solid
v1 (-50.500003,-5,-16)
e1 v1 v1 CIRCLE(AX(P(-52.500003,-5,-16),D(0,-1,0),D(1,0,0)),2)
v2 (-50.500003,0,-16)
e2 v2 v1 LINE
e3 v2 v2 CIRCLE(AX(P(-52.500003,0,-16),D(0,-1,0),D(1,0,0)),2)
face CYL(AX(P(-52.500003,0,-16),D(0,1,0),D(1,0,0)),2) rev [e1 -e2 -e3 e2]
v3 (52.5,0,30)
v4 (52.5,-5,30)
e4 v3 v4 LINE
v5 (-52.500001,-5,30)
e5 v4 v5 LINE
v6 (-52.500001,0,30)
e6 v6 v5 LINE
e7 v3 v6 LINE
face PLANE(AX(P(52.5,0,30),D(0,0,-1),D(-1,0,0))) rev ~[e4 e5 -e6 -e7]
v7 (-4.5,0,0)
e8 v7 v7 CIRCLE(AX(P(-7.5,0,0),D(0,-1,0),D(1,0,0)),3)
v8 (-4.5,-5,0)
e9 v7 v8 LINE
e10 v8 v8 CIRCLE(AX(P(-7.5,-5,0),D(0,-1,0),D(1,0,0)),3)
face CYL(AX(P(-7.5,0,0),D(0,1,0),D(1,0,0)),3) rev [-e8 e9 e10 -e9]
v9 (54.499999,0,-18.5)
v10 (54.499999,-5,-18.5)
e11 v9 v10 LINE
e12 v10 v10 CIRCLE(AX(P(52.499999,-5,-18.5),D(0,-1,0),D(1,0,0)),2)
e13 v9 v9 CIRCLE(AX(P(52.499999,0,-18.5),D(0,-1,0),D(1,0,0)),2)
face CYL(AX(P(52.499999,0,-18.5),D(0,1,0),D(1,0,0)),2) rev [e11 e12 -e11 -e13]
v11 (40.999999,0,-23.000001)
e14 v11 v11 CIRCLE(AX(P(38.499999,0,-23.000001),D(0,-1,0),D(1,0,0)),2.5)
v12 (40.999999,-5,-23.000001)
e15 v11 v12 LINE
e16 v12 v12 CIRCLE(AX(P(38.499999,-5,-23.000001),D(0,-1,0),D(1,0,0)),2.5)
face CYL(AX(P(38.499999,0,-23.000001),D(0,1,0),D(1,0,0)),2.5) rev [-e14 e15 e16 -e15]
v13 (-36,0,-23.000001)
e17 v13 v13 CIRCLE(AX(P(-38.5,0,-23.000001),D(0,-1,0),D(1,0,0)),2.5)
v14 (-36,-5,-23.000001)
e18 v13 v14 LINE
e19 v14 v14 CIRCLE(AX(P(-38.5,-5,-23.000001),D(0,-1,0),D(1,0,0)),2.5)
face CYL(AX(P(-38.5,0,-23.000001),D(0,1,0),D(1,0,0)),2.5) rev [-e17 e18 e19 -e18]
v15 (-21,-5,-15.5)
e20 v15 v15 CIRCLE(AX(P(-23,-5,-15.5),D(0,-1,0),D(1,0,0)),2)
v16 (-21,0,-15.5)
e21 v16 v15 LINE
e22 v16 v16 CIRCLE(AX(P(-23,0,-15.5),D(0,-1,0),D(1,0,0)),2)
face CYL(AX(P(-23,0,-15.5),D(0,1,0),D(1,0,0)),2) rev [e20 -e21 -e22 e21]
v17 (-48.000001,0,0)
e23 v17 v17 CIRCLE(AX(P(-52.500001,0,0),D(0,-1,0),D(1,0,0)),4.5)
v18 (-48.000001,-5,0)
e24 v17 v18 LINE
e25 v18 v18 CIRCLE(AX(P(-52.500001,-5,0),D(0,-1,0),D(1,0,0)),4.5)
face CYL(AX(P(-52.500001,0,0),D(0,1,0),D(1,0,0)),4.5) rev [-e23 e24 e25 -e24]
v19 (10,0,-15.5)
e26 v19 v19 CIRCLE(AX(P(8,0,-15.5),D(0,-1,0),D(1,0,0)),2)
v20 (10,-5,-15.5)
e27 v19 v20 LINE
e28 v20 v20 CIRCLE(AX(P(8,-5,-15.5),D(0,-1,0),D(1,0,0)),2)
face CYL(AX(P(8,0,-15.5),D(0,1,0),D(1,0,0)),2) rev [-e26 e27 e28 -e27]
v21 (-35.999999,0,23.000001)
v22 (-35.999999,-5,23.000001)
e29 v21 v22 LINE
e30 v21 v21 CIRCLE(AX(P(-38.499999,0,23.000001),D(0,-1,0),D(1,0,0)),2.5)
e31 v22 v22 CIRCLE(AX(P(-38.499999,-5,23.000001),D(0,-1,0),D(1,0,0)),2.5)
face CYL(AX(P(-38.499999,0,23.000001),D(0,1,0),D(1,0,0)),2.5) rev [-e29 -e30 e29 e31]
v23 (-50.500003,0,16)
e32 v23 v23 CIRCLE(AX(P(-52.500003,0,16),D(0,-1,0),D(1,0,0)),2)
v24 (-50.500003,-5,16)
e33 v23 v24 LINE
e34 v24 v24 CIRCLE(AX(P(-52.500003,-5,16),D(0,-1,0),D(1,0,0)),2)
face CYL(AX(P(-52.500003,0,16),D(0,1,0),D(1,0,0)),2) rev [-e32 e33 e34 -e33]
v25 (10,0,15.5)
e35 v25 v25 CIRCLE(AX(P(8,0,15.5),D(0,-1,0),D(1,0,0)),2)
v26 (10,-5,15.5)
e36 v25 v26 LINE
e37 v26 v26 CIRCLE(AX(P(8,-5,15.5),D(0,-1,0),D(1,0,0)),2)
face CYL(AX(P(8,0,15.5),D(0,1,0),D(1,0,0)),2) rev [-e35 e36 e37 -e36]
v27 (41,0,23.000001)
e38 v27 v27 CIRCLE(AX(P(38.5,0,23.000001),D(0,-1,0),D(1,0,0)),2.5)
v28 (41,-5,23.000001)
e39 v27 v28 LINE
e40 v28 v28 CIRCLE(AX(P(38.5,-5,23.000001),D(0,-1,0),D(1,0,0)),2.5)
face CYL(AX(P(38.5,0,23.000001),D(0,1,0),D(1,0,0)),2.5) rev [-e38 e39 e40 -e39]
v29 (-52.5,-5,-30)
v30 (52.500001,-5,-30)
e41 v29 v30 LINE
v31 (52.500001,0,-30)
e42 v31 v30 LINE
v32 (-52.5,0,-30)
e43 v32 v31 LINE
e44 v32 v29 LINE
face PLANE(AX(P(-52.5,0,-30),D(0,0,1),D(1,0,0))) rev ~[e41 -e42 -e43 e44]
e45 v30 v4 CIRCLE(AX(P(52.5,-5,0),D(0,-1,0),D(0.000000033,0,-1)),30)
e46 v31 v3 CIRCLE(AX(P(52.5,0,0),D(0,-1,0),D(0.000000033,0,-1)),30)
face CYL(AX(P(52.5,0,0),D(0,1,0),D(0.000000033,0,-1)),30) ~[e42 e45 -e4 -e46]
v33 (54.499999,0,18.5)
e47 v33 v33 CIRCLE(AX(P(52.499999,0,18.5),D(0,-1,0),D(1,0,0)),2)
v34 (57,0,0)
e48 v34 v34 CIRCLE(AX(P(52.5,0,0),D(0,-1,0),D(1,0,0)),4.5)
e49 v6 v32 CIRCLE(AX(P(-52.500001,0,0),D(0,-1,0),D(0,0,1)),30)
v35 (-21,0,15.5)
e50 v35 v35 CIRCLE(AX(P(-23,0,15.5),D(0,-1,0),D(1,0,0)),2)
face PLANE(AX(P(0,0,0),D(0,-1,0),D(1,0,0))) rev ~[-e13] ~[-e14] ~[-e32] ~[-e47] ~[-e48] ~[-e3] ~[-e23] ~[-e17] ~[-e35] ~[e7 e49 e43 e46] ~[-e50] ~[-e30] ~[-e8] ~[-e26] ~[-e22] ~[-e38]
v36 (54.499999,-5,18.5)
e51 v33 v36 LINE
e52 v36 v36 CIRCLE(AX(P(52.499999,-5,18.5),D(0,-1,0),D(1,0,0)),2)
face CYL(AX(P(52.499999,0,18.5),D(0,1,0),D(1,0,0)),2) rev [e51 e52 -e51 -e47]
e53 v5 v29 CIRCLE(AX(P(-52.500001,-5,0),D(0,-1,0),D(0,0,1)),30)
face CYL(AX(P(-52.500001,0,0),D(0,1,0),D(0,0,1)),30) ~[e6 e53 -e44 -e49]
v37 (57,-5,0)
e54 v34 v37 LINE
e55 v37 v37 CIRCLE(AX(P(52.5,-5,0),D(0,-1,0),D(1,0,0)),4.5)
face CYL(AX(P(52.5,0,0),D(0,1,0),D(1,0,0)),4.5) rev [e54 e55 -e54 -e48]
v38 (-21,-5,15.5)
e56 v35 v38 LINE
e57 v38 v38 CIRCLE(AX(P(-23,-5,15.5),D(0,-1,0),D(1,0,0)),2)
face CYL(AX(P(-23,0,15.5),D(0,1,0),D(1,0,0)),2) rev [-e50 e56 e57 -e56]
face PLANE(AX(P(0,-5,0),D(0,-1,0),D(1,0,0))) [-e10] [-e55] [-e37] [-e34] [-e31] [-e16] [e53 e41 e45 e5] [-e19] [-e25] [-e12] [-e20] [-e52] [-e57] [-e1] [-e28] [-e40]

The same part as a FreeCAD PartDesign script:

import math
import FreeCAD as App
import Part
import Sketcher
from FreeCAD import Vector
Q = App.Units.Quantity

doc = App.newDocument("Part")
body = doc.addObject("PartDesign::Body", "Body")

sketch1 = body.newObject("Sketcher::SketchObject", "Sketch")
sketch1.AttachmentSupport = (doc.getObject("XZ_Plane"), [""])
sketch1.MapMode = "FlatFace"
sketch1.addGeometry([
    Part.ArcOfCircle(Part.Circle(Vector(52.5, 0, 0), Vector(0, 0, 1), 30), math.radians(-90), math.radians(90)),
    Part.LineSegment(Vector(52.5, 30, 0), Vector(-52.5, 30, 0)),
    Part.ArcOfCircle(Part.Circle(Vector(-52.5, 0, 0), Vector(0, 0, 1), 30), math.radians(90), math.radians(270)),
    Part.LineSegment(Vector(-52.5, -30, 0), Vector(52.5, -30, 0)),
    Part.Circle(Vector(-38.5, -23, 0), Vector(0, 0, 1), 2.5),
    Part.Circle(Vector(-52.5, -16, 0), Vector(0, 0, 1), 2),
    Part.Circle(Vector(-23, -15.5, 0), Vector(0, 0, 1), 2),
    Part.Circle(Vector(8, -15.5, 0), Vector(0, 0, 1), 2),
    Part.Circle(Vector(38.5, -23, 0), Vector(0, 0, 1), 2.5),
    Part.Circle(Vector(52.5, -18.5, 0), Vector(0, 0, 1), 2),
    Part.Circle(Vector(-52.5, 0, 0), Vector(0, 0, 1), 4.5),
    Part.Circle(Vector(-7.5, 0, 0), Vector(0, 0, 1), 3),
    Part.Circle(Vector(-52.5, 16, 0), Vector(0, 0, 1), 2),
    Part.Circle(Vector(-38.5, 23, 0), Vector(0, 0, 1), 2.5),
    Part.Circle(Vector(-23, 15.5, 0), Vector(0, 0, 1), 2),
    Part.Circle(Vector(52.5, 0, 0), Vector(0, 0, 1), 4.5),
    Part.Circle(Vector(8, 15.5, 0), Vector(0, 0, 1), 2),
    Part.Circle(Vector(52.5, 18.5, 0), Vector(0, 0, 1), 2),
    Part.Circle(Vector(38.5, 23, 0), Vector(0, 0, 1), 2.5),
], False)
sketch1.addConstraint([
    Sketcher.Constraint("Tangent", 0, 2, 1, 1),
    Sketcher.Constraint("Tangent", 1, 2, 2, 1),
    Sketcher.Constraint("Tangent", 2, 2, 3, 1),
    Sketcher.Constraint("Tangent", 3, 2, 0, 1),
    Sketcher.Constraint("Horizontal", 1),
    Sketcher.Constraint("Horizontal", 3),
    Sketcher.Constraint("Coincident", 10, 3, 2, 3),
    Sketcher.Constraint("Coincident", 15, 3, 0, 3),
    Sketcher.Constraint("Equal", 5, 6),
    Sketcher.Constraint("Equal", 6, 7),
    Sketcher.Constraint("Equal", 4, 8),
    Sketcher.Constraint("Equal", 7, 9),
    Sketcher.Constraint("Equal", 9, 12),
    Sketcher.Constraint("Equal", 8, 13),
    Sketcher.Constraint("Equal", 12, 14),
    Sketcher.Constraint("Equal", 10, 15),
    Sketcher.Constraint("Equal", 14, 16),
    Sketcher.Constraint("Equal", 16, 17),
    Sketcher.Constraint("Equal", 13, 18),
    Sketcher.Constraint("Symmetric", 0, 3, 2, 3, -1, 1),
    Sketcher.Constraint("Symmetric", 8, 3, 13, 3, -1, 1),
    Sketcher.Constraint("Symmetric", 4, 3, 18, 3, -1, 1),
    Sketcher.Constraint("Symmetric", 4, 3, 8, 3, -2),
    Sketcher.Constraint("Symmetric", 5, 3, 12, 3, -1),
    Sketcher.Constraint("Symmetric", 6, 3, 14, 3, -1),
    Sketcher.Constraint("Symmetric", 7, 3, 16, 3, -1),
    Sketcher.Constraint("Symmetric", 9, 3, 17, 3, -1),
    Sketcher.Constraint("PointOnObject", 11, 3, -1),
    Sketcher.Constraint("Horizontal", 6, 3, 7, 3),
    Sketcher.Constraint("Vertical", 0, 3, 9, 3),
    Sketcher.Constraint("Diameter", 4, Q("5 mm")),
    Sketcher.Constraint("Diameter", 5, Q("4 mm")),
    Sketcher.Constraint("Diameter", 10, Q("9 mm")),
    Sketcher.Constraint("Diameter", 11, Q("6 mm")),
    Sketcher.Constraint("Radius", 0, Q("30 mm")),
    Sketcher.Constraint("DistanceX", 1, 2, 1, 1, Q("105.000001 mm")),
    Sketcher.Constraint("DistanceY", 4, 3, -1, 1, Q("23.000001 mm")),
    Sketcher.Constraint("DistanceY", 5, 3, -1, 1, Q("16 mm")),
    Sketcher.Constraint("DistanceX", 6, 3, -1, 1, Q("23 mm")),
    Sketcher.Constraint("DistanceX", -1, 1, 7, 3, Q("8 mm")),
    Sketcher.Constraint("DistanceX", 2, 3, 4, 3, Q("14.000001 mm")),
    Sketcher.Constraint("DistanceX", 5, 3, 8, 3, Q("91.000002 mm")),
    Sketcher.Constraint("DistanceY", 9, 3, 7, 3, Q("3 mm")),
    Sketcher.Constraint("DistanceX", 4, 3, 11, 3, Q("31 mm")),
    Sketcher.Constraint("DistanceY", 6, 3, 14, 3, Q("31 mm")),
])
pad1 = body.newObject("PartDesign::Pad", "Pad")
pad1.Profile = sketch1
pad1.Length = 5

doc.recompute()
